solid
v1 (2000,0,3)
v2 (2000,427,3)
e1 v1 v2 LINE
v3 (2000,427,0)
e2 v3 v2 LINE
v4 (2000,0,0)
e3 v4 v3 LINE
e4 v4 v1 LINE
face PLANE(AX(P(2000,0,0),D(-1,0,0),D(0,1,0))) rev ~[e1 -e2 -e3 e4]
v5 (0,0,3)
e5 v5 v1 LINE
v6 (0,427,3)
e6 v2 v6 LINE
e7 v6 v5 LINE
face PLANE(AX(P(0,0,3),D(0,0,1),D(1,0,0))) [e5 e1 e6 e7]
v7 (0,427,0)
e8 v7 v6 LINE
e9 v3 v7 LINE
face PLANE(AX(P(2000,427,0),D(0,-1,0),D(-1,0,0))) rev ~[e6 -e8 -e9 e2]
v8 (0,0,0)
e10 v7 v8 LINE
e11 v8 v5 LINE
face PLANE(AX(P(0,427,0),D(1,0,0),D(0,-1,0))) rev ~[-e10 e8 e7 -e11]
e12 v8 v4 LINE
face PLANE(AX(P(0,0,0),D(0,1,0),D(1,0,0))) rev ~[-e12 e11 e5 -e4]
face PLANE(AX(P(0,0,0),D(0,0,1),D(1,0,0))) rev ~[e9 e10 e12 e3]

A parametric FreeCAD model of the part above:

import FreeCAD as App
import Part
import Sketcher
from FreeCAD import Vector
Q = App.Units.Quantity


def add_polygon(sketch, points):
    """Adds a closed chain of lines whose ends are joined by coincident constraints."""
    first, n = sketch.GeometryCount, len(points)
    for a, b in zip(points, points[1:] + points[:1]):
        sketch.addGeometry(Part.LineSegment(App.Vector(*a, 0), App.Vector(*b, 0)), False)
    for i in range(n):
        sketch.addConstraint(Sketcher.Constraint("Coincident", first + i, 2, first + (i + 1) % n, 1))

doc = App.newDocument("Part")
body = doc.addObject("PartDesign::Body", "Body")

sketch1 = body.newObject("Sketcher::SketchObject", "Sketch")
sketch1.AttachmentSupport = (doc.getObject("XY_Plane"), [""])
sketch1.MapMode = "FlatFace"
add_polygon(sketch1, [(0, 427), (0, 0), (2000, 0), (2000, 427)])
sketch1.addConstraint([
    Sketcher.Constraint("Vertical", 0),
    Sketcher.Constraint("Horizontal", 1),
    Sketcher.Constraint("Vertical", 2),
    Sketcher.Constraint("Horizontal", 3),
    Sketcher.Constraint("Coincident", 0, 2, -1, 1),
    Sketcher.Constraint("DistanceX", 1, 1, 1, 2, Q("2000 mm")),
    Sketcher.Constraint("DistanceY", 0, 2, 0, 1, Q("427 mm")),
])
pad1 = body.newObject("PartDesign::Pad", "Pad")
pad1.Profile = sketch1
pad1.Length = 3

doc.recompute()
